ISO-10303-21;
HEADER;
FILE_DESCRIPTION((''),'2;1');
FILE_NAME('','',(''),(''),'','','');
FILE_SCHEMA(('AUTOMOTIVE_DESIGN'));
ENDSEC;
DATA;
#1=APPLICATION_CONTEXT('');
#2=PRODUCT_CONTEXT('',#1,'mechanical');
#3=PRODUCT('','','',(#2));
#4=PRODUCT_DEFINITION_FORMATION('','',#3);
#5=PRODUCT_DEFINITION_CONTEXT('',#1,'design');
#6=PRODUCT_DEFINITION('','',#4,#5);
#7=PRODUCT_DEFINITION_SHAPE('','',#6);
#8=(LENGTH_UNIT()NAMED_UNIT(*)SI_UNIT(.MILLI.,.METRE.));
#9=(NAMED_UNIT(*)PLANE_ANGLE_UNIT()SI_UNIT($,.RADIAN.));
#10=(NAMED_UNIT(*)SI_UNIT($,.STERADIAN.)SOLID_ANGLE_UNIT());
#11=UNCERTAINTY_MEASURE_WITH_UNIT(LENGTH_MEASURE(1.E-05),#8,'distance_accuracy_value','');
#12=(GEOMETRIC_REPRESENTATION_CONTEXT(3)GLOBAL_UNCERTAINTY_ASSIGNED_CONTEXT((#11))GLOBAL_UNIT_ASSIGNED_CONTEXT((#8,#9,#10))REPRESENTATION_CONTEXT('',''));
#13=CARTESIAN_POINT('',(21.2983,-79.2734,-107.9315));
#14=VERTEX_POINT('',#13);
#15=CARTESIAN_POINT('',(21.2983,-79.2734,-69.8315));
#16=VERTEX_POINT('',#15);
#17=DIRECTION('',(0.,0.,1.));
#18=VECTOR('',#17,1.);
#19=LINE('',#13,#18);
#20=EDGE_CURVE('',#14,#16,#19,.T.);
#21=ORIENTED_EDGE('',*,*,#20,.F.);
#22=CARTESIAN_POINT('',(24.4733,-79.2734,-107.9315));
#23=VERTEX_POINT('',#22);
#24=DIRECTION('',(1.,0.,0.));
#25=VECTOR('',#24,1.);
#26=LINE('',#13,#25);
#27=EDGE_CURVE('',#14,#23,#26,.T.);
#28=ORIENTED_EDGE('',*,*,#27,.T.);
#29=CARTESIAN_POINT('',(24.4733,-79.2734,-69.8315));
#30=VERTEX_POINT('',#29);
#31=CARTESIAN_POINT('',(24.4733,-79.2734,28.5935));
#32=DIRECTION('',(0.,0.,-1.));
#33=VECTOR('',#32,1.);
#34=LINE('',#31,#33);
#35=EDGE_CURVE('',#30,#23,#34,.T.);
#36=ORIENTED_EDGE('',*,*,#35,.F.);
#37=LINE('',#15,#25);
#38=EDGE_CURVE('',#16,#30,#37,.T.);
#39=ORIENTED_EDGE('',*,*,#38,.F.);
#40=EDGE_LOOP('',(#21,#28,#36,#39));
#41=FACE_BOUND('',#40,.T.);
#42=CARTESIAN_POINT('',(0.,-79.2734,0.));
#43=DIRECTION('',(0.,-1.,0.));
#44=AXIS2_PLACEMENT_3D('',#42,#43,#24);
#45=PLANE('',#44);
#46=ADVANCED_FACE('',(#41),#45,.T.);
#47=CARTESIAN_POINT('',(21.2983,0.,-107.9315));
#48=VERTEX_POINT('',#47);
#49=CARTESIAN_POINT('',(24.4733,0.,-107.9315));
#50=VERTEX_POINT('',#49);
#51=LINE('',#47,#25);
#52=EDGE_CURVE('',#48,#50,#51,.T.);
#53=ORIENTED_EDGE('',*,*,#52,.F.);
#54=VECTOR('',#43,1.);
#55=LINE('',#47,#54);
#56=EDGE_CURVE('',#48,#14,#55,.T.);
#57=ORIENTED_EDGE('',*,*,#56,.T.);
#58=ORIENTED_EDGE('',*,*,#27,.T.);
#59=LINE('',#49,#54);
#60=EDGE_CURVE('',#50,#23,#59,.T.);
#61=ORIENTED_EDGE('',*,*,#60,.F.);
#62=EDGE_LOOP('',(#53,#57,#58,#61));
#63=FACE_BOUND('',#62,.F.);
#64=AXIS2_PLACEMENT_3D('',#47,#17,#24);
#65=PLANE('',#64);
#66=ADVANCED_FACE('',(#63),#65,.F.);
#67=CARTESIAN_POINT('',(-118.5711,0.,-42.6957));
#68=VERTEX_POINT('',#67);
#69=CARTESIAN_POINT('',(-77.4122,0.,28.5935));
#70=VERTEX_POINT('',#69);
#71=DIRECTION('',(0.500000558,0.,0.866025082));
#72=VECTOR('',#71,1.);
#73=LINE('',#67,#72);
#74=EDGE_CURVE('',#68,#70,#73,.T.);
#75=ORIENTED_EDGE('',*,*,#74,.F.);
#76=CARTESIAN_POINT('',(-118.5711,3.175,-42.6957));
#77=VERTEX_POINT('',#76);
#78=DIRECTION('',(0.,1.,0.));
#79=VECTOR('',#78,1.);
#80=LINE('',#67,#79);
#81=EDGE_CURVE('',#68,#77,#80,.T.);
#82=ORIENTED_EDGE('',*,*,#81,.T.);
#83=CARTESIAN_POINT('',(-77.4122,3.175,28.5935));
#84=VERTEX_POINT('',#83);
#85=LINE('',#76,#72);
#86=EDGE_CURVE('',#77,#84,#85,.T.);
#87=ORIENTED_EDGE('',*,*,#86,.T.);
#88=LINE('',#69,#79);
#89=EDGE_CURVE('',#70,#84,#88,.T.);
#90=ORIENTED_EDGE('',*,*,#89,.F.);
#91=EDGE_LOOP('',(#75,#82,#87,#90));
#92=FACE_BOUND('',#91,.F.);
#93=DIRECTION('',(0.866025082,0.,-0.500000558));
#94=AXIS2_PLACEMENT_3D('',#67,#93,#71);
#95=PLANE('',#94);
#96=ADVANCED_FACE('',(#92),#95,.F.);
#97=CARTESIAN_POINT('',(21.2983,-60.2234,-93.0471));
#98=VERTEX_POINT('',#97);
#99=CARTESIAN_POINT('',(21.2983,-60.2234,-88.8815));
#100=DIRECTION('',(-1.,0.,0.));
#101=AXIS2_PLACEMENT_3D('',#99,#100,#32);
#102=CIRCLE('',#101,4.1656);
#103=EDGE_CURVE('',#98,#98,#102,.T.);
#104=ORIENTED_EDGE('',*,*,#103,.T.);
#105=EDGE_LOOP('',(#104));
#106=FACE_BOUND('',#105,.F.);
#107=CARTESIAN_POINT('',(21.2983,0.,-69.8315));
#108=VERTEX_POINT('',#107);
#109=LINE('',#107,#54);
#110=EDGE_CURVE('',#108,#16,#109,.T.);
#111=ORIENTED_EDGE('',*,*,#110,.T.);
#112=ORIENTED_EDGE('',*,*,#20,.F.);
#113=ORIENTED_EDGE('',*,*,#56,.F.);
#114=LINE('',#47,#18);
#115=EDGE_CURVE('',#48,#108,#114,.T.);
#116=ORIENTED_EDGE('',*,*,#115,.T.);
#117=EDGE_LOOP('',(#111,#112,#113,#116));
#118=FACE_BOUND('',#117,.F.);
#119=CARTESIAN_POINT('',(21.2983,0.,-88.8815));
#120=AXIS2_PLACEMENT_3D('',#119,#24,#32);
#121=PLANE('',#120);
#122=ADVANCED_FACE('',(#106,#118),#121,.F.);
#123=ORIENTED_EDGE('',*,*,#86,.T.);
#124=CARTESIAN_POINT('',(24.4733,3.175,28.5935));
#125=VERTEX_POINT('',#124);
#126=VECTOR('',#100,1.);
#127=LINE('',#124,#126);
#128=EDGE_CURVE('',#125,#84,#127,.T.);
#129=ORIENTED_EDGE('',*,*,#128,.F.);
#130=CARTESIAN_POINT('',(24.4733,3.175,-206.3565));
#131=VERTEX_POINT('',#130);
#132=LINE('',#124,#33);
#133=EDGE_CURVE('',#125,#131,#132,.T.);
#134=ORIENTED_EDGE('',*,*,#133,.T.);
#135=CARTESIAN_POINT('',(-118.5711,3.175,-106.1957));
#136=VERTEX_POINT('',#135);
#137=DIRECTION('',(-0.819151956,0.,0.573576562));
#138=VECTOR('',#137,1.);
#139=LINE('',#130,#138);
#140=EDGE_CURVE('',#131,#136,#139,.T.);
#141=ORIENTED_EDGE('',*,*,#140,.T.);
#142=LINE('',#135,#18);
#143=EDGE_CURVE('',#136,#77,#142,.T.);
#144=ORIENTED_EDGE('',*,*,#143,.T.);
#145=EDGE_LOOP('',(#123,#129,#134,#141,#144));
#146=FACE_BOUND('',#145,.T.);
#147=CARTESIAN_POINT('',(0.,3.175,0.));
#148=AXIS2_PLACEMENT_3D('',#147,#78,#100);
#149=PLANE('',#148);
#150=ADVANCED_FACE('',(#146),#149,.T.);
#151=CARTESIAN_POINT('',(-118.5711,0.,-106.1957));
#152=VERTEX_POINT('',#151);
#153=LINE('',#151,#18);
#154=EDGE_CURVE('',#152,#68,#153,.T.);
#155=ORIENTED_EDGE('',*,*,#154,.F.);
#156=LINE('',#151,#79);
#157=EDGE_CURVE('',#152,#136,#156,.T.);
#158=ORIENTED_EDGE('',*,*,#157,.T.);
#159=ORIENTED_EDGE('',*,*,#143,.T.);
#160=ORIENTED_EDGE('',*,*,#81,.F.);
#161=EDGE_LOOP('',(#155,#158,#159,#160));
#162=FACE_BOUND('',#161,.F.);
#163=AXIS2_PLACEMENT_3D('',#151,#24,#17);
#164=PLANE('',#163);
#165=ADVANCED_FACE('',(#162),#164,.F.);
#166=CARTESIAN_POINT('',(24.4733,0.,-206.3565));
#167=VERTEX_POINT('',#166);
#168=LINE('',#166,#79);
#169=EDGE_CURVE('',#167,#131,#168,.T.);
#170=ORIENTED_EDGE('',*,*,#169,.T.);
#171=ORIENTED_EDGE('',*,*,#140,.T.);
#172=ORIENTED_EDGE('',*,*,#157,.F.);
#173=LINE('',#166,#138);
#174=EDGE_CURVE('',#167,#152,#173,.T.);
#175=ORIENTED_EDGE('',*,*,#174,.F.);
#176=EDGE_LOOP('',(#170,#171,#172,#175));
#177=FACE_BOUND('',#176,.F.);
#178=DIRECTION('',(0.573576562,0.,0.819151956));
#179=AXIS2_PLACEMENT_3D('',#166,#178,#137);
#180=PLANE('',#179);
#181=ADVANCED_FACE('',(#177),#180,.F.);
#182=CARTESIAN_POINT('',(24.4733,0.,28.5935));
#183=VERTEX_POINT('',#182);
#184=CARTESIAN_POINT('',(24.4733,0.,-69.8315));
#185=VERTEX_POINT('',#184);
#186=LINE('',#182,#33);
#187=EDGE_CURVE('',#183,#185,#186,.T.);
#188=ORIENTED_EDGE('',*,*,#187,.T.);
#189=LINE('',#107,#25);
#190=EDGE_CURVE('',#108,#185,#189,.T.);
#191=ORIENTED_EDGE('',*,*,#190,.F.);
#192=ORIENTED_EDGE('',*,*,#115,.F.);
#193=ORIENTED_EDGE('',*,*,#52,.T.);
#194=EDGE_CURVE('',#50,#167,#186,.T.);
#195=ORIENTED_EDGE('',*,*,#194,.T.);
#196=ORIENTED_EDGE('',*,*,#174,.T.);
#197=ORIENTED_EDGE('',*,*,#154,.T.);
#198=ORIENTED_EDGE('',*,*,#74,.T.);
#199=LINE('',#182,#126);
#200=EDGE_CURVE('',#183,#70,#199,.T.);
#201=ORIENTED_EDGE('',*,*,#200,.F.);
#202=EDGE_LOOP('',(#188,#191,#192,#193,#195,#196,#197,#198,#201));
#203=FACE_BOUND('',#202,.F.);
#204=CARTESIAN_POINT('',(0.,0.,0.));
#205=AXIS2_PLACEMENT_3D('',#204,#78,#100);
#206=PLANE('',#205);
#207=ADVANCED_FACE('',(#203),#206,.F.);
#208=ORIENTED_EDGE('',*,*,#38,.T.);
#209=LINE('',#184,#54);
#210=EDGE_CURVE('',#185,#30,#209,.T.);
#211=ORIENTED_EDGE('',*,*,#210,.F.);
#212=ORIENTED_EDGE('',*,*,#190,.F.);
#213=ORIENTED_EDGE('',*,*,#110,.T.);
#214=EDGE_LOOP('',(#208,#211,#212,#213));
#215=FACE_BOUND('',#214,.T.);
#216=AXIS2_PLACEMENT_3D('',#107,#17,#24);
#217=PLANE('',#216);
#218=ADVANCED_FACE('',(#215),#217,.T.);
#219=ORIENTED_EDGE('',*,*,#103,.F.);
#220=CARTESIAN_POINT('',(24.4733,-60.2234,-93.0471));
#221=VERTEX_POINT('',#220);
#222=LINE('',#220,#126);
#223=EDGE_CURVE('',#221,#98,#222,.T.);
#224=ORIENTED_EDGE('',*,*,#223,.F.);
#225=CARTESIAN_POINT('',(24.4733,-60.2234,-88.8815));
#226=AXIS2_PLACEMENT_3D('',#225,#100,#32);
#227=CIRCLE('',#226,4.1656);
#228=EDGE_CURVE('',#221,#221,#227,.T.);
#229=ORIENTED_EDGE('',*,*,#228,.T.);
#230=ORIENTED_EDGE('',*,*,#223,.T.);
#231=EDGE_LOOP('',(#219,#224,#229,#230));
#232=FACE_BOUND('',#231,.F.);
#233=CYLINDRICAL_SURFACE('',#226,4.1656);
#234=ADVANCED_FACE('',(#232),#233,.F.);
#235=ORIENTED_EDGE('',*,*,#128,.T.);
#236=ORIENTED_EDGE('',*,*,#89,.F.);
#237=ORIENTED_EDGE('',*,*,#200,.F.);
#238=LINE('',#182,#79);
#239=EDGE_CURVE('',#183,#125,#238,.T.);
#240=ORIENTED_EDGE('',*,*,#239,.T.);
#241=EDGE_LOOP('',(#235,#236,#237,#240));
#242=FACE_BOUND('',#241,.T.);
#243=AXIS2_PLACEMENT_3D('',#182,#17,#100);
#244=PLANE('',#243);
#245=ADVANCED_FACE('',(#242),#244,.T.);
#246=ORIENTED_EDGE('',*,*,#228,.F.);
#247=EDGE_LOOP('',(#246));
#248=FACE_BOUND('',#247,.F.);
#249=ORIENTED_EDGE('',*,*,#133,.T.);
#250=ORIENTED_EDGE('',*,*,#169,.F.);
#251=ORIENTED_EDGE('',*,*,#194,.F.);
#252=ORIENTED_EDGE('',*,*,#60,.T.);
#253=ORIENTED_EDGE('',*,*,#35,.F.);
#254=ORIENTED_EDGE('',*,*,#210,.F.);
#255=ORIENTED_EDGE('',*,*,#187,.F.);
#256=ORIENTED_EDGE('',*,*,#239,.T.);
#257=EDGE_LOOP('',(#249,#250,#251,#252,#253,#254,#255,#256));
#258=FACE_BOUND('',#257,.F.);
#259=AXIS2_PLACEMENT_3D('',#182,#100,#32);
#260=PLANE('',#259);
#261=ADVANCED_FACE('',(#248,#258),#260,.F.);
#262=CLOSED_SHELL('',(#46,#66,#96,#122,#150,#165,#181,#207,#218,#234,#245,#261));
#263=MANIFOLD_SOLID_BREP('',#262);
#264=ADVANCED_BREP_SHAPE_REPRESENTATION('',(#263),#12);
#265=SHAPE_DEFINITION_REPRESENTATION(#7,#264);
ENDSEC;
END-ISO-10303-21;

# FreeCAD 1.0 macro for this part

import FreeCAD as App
import Part
import Sketcher
Q = App.Units.Quantity


def add_polygon(sketch, points):
    """Adds a closed chain of lines whose ends are joined by coincident constraints."""
    first, n = sketch.GeometryCount, len(points)
    for a, b in zip(points, points[1:] + points[:1]):
        sketch.addGeometry(Part.LineSegment(App.Vector(*a, 0), App.Vector(*b, 0)), False)
    for i in range(n):
        sketch.addConstraint(Sketcher.Constraint("Coincident", first + i, 2, first + (i + 1) % n, 1))

doc = App.newDocument("Part")
params = doc.addObject("Spreadsheet::Sheet", "Params")
for row, (alias, value) in enumerate([
    ("sketch1_height", "2.5 in"),
    ("sketch1_height2", "9.25 in"),
    ("sketch1_length", "6.875 in"),
    ("pad1_length", "0.125 in"),
    ("sketch2_height", "1.5 in"),
    ("sketch2_width", "0.125 in"),
    ("pad2_length", "3.121 in"),
    ("sketch3_diameter", "0.328 in"),
    ("hole_diameter", "0.328 in"),
], start=1):
    params.set(f"A{row}", alias)
    params.set(f"B{row}", "=" + value)
    params.setAlias(f"B{row}", alias)

body = doc.addObject("PartDesign::Body", "Body")

# Sketch on XZ plane
sketch1 = body.newObject("Sketcher::SketchObject", "Sketch")
sketch1.AttachmentSupport = (doc.getObject("XZ_Plane"), [""])
sketch1.MapMode = "FlatFace"
add_polygon(sketch1, [(-77, 29), (24, 29), (24, -206), (-119, -106), (-119, -43)])  # lines 0-4
sketch1.addConstraint(Sketcher.Constraint("Horizontal", 0))
sketch1.addConstraint(Sketcher.Constraint("Vertical", 1))
sketch1.addConstraint(Sketcher.Constraint("Vertical", 3))
sketch1.addConstraint(Sketcher.Constraint("DistanceY", 3, 1, 3, 2, Q("2.5 in")))
sketch1.addConstraint(Sketcher.Constraint("DistanceY", 1, 2, 1, 1, Q("9.25 in")))
sketch1.addConstraint(Sketcher.Constraint("Distance", 2, Q("6.875 in")))
sketch1.addConstraint(Sketcher.Constraint("Angle", 2, Q("145 deg")))
sketch1.addConstraint(Sketcher.Constraint("Angle", 4, Q("60 deg")))
sketch1.addConstraint(Sketcher.Constraint("DistanceX", -1, 1, 0, 2, 24.4733))
sketch1.addConstraint(Sketcher.Constraint("DistanceY", -1, 1, 0, 2, 28.5935))
sketch1.setExpression("Constraints[8]", "Params.sketch1_height")
sketch1.setExpression("Constraints[9]", "Params.sketch1_height2")
sketch1.setExpression("Constraints[10]", "Params.sketch1_length")
pad1 = body.newObject("PartDesign::Pad", "Pad")
pad1.Profile = sketch1
pad1.setExpression("Length", "Params.pad1_length")
pad1.Reversed = True

# Sketch on XZ plane
sketch2 = body.newObject("Sketcher::SketchObject", "Sketch001")
sketch2.AttachmentSupport = (doc.getObject("XZ_Plane"), [""])
sketch2.MapMode = "FlatFace"
add_polygon(sketch2, [(24.5, -107.9), (24.5, -69.8), (21.3, -69.8), (21.3, -107.9)])  # lines 0-3
sketch2.addConstraint(Sketcher.Constraint("Vertical", 0))
sketch2.addConstraint(Sketcher.Constraint("Horizontal", 1))
sketch2.addConstraint(Sketcher.Constraint("Vertical", 2))
sketch2.addConstraint(Sketcher.Constraint("Horizontal", 3))
sketch2.addConstraint(Sketcher.Constraint("DistanceY", 0, 1, 0, 2, Q("1.5 in")))
sketch2.addConstraint(Sketcher.Constraint("DistanceX", 1, 2, 1, 1, Q("0.125 in")))
sketch2.addConstraint(Sketcher.Constraint("DistanceX", -1, 1, 0, 2, 24.4733))
sketch2.addConstraint(Sketcher.Constraint("DistanceY", 0, 2, -1, 1, 69.8315))
sketch2.setExpression("Constraints[8]", "Params.sketch2_height")
sketch2.setExpression("Constraints[9]", "Params.sketch2_width")
pad2 = body.newObject("PartDesign::Pad", "Pad001")
pad2.Profile = sketch2
pad2.setExpression("Length", "Params.pad2_length")

# Sketch on YZ plane
sketch3 = body.newObject("Sketcher::SketchObject", "Sketch002")
sketch3.AttachmentSupport = (doc.getObject("YZ_Plane"), [""])
sketch3.MapMode = "FlatFace"
sketch3.AttachmentOffset = App.Placement(App.Vector(0, 0, 24.4733), App.Rotation())
sketch3.addGeometry(Part.Circle(App.Vector(-60.2, -88.9, 0), App.Vector(0, 0, 1), 4.2), False)
sketch3.addConstraint(Sketcher.Constraint("Diameter", 0, Q("0.328 in")))
sketch3.addConstraint(Sketcher.Constraint("DistanceX", 0, 3, -1, 1, Q("2.371 in")))
sketch3.addConstraint(Sketcher.Constraint("DistanceY", 0, 3, -1, 1, 88.8815))
sketch3.setExpression("Constraints[0]", "Params.sketch3_diameter")
doc.recompute()
hole = body.newObject("PartDesign::Hole", "Hole")
hole.Profile = sketch3
hole.ThreadType = "None"
hole.setExpression("Diameter", "Params.hole_diameter")
hole.DepthType = "ThroughAll"

doc.recompute()
